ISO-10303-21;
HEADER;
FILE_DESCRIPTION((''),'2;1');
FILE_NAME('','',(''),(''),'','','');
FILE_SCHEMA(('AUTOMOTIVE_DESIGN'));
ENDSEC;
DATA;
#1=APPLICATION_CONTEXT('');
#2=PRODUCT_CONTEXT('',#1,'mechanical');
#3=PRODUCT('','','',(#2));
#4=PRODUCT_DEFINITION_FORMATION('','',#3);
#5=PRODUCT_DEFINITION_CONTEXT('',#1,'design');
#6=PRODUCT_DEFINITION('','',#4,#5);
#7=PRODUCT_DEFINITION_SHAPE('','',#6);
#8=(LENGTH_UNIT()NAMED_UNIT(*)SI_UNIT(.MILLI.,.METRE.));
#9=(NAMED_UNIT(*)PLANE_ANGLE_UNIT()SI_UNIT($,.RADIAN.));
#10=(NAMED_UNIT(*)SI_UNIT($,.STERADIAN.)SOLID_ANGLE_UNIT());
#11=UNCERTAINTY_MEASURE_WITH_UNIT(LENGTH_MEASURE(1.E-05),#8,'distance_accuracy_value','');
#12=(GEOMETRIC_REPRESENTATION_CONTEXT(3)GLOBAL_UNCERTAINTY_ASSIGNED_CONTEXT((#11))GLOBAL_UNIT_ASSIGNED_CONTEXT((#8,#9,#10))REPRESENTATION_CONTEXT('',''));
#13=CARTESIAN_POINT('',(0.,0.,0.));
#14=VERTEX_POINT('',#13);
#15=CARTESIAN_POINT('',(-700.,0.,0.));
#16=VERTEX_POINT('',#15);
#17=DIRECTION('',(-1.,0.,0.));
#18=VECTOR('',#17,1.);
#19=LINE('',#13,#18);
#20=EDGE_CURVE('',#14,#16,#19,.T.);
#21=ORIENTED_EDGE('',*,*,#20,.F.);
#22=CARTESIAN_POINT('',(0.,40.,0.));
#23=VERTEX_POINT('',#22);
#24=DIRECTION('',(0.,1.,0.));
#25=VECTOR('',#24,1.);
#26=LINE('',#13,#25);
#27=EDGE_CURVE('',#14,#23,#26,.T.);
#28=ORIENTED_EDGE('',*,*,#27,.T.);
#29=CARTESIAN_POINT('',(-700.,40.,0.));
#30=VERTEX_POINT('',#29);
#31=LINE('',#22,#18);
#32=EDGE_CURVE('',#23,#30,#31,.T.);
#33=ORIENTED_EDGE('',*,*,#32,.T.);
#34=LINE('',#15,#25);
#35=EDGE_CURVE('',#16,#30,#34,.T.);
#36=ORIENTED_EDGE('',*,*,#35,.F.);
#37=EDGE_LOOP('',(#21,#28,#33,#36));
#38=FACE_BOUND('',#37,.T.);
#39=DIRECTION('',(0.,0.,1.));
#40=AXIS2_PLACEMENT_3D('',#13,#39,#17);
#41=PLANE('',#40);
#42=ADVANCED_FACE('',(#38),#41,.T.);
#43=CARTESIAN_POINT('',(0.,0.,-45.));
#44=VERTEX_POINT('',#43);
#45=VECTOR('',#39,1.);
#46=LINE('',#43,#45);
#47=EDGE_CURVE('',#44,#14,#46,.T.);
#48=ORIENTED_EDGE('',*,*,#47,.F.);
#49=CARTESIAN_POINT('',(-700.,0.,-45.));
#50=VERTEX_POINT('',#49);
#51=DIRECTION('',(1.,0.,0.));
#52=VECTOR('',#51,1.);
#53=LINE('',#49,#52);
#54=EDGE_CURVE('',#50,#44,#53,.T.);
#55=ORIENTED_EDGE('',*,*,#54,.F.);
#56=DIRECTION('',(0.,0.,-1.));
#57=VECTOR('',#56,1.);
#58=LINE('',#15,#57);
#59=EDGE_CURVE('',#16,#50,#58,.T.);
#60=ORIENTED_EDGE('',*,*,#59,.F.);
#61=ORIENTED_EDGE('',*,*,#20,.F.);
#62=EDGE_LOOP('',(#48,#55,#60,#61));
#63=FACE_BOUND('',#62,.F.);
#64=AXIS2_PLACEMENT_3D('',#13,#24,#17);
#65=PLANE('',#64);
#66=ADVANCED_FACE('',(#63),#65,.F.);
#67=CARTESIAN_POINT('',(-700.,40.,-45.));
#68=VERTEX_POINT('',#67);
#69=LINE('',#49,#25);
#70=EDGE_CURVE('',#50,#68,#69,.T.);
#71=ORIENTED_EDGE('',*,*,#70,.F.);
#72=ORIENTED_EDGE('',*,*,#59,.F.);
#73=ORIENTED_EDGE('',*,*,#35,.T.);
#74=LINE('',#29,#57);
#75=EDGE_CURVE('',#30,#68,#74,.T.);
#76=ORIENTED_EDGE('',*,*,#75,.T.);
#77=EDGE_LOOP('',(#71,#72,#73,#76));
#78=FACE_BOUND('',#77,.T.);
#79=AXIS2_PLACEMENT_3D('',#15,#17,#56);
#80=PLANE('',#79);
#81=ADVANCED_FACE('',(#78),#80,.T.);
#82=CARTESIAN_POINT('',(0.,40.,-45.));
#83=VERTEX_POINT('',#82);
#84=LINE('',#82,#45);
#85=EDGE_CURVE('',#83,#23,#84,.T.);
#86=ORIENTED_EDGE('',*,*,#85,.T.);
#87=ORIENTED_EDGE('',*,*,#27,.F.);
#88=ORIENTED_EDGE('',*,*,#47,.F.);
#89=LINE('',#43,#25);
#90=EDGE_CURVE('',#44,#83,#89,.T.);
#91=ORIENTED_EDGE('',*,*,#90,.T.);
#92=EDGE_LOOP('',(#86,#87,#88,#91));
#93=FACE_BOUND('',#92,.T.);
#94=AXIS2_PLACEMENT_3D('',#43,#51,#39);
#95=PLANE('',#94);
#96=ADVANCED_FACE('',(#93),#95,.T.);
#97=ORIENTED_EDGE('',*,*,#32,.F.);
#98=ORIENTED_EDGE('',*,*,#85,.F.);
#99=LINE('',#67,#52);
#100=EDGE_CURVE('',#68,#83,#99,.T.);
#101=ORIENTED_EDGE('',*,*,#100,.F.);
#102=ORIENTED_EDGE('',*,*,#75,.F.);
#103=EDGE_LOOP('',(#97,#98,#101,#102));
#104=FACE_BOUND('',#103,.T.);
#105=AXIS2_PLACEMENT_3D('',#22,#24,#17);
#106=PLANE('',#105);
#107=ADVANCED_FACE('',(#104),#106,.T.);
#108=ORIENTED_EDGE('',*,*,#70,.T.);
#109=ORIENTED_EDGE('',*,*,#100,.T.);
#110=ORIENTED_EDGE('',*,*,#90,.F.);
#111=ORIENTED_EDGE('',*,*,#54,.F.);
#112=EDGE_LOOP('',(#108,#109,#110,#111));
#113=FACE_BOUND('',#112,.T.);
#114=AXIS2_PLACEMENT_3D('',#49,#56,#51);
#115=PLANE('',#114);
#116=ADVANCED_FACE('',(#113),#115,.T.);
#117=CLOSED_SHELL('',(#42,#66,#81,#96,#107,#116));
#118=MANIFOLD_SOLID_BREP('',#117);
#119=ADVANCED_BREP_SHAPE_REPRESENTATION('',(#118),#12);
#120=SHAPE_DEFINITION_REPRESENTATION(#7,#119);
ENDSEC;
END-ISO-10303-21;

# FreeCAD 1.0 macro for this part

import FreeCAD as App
import Part
import Sketcher

V = App.Vector
Q = App.Units.Quantity


def add_polygon(sketch, points):
    """Adds a closed chain of lines whose ends are joined by coincident constraints."""
    first, n = sketch.GeometryCount, len(points)
    for a, b in zip(points, points[1:] + points[:1]):
        sketch.addGeometry(Part.LineSegment(App.Vector(*a, 0), App.Vector(*b, 0)), False)
    for i in range(n):
        sketch.addConstraint(Sketcher.Constraint("Coincident", first + i, 2, first + (i + 1) % n, 1))

doc = App.newDocument("Part")
body = doc.addObject("PartDesign::Body", "Body")

sketch1 = body.newObject("Sketcher::SketchObject", "Sketch")
sketch1.AttachmentSupport = (doc.getObject("XZ_Plane"), [""])
sketch1.MapMode = "FlatFace"
add_polygon(sketch1, [(-700, 0), (0, 0), (0, -45), (-700, -45)])
sketch1.addConstraint([
    Sketcher.Constraint("Horizontal", 0),
    Sketcher.Constraint("Vertical", 1),
    Sketcher.Constraint("Horizontal", 2),
    Sketcher.Constraint("Vertical", 3),
    Sketcher.Constraint("Coincident", 0, 2, -1, 1),
    Sketcher.Constraint("DistanceX", 0, 1, 0, 2, Q("700 mm")),
    Sketcher.Constraint("DistanceY", 1, 2, 1, 1, Q("45 mm")),
])
pad1 = body.newObject("PartDesign::Pad", "Pad")
pad1.Profile = sketch1
pad1.Length = 40
pad1.Reversed = True

doc.recompute()
